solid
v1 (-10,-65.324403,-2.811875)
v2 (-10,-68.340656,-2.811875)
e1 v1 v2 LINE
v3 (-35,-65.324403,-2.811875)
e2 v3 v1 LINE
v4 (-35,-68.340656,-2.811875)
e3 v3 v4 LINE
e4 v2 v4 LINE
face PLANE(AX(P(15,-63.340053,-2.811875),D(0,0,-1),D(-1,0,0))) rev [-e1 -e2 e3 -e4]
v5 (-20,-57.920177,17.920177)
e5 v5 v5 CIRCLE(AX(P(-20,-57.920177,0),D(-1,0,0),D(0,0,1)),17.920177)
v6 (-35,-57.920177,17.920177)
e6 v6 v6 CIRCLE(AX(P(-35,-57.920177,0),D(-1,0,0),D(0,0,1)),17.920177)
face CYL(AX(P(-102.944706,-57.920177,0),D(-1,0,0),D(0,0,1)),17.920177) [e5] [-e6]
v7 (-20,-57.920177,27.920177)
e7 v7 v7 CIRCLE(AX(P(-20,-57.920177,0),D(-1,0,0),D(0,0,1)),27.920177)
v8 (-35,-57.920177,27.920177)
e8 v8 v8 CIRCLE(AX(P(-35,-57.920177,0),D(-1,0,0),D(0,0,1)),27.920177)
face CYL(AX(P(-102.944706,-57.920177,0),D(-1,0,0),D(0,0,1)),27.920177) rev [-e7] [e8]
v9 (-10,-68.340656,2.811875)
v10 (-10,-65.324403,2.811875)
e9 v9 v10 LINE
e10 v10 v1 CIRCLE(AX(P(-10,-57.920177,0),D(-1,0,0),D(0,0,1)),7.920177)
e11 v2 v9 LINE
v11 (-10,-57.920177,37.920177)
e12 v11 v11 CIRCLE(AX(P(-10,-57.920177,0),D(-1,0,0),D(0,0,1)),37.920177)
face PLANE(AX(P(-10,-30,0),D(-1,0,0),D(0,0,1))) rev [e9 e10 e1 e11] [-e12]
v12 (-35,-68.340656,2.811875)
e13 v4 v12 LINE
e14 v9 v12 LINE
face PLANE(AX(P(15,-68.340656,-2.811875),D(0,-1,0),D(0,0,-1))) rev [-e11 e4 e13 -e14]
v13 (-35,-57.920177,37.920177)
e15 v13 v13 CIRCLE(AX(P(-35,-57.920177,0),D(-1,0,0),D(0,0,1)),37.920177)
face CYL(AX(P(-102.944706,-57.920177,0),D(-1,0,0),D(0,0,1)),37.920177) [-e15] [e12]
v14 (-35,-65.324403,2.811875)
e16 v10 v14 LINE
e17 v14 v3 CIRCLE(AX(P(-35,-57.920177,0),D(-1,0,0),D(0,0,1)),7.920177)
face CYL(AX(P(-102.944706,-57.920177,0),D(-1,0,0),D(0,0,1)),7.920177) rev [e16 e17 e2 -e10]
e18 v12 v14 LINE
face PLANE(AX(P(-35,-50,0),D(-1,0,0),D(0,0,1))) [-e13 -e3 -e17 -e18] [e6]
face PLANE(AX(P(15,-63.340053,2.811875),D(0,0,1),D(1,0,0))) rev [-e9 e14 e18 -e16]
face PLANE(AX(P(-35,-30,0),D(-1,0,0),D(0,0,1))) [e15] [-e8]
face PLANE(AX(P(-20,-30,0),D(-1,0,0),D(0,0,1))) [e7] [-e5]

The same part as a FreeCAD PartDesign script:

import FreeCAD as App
import Part
import Sketcher
from FreeCAD import Vector


def add_polygon(sketch, points):
    """Adds a closed chain of lines whose ends are joined by coincident constraints."""
    first, n = sketch.GeometryCount, len(points)
    for a, b in zip(points, points[1:] + points[:1]):
        sketch.addGeometry(Part.LineSegment(App.Vector(*a, 0), App.Vector(*b, 0)), False)
    for i in range(n):
        sketch.addConstraint(Sketcher.Constraint("Coincident", first + i, 2, first + (i + 1) % n, 1))

doc = App.newDocument("Part")
params = doc.addObject("Spreadsheet::Sheet", "Params")
for row, (alias, value) in enumerate([
    ("sketch1_width", "15 mm"),
    ("sketch1_width2", "25 mm"),
    ("sketch1_height", "10 mm"),
    ("revolution_angle", "360 deg"),
    ("pocket1_length", "50 mm"),
], start=1):
    params.set(f"A{row}", alias)
    params.set(f"B{row}", "=" + value)
    params.setAlias(f"B{row}", alias)

body = doc.addObject("PartDesign::Body", "Body")

sketch1 = doc.addObject("Sketcher::SketchObject", "Sketch")
body.addObject(sketch1)
sketch1.AttachmentSupport = (doc.XY_Plane, [""])
sketch1.MapMode = "FlatFace"
add_polygon(sketch1, [(-35, -30), (-20, -30), (-20, -40), (-35, -40), (-35, -50), (-10, -50), (-10, -20), (-35, -20)])
sketch1.addGeometry(Part.LineSegment(Vector(-35, -58, 0), Vector(-10, -58, 0)), True)
sketch1.addConstraint(Sketcher.Constraint("Horizontal", 0))
sketch1.addConstraint(Sketcher.Constraint("Vertical", 1))
sketch1.addConstraint(Sketcher.Constraint("Horizontal", 2))
sketch1.addConstraint(Sketcher.Constraint("Vertical", 3))
sketch1.addConstraint(Sketcher.Constraint("Horizontal", 4))
sketch1.addConstraint(Sketcher.Constraint("Vertical", 5))
sketch1.addConstraint(Sketcher.Constraint("Horizontal", 6))
sketch1.addConstraint(Sketcher.Constraint("Vertical", 7))
sketch1.addConstraint(Sketcher.Constraint("Horizontal", 8))
sketch1.addConstraint(Sketcher.Constraint("Vertical", 3, 2, 6, 2))
sketch1.addConstraint(Sketcher.Constraint("Vertical", 7, 2, 8, 1))
sketch1.addConstraint(Sketcher.Constraint("Vertical", 5, 2, 8, 2))
sketch1.addConstraint(Sketcher.Constraint("Equal", 1, 3))
sketch1.addConstraint(Sketcher.Constraint("Equal", 3, 7))
sketch1.addConstraint(Sketcher.Constraint("DistanceX", 0, 1, 0, 2, 15.0))
sketch1.addConstraint(Sketcher.Constraint("DistanceX", 4, 1, 4, 2, 25.0))
sketch1.addConstraint(Sketcher.Constraint("DistanceY", 1, 2, 1, 1, 10.0))
sketch1.addConstraint(Sketcher.Constraint("DistanceX", 0, 2, -1, 1, 20.0))
sketch1.addConstraint(Sketcher.Constraint("DistanceY", 0, 2, -1, 1, 30.0))
sketch1.addConstraint(Sketcher.Constraint("DistanceY", 8, 1, -1, 1, 57.920177))
sketch1.setExpression("Constraints[22]", "Params.sketch1_width")
sketch1.setExpression("Constraints[23]", "Params.sketch1_width2")
sketch1.setExpression("Constraints[24]", "Params.sketch1_height")
revolution = doc.addObject("PartDesign::Revolution", "Revolution")
body.addObject(revolution)
revolution.Profile = sketch1
revolution.ReferenceAxis = (sketch1, ["Axis0"])
revolution.setExpression("Angle", "Params.revolution_angle")

sketch2 = doc.addObject("Sketcher::SketchObject", "Sketch001")
body.addObject(sketch2)
sketch2.AttachmentSupport = (doc.YZ_Plane, [""])
sketch2.MapMode = "FlatFace"
sketch2.AttachmentOffset = App.Placement(Vector(0, 0, -35), App.Rotation())
add_polygon(sketch2, [(-63, -3), (-68, -3), (-68, 3), (-63, 3)])
sketch2.addConstraint(Sketcher.Constraint("Horizontal", 0))
sketch2.addConstraint(Sketcher.Constraint("Vertical", 1))
sketch2.addConstraint(Sketcher.Constraint("Horizontal", 2))
sketch2.addConstraint(Sketcher.Constraint("Vertical", 3))
sketch2.addConstraint(Sketcher.Constraint("DistanceY", 1, 1, 1, 2, 5.62375))
sketch2.addConstraint(Sketcher.Constraint("DistanceX", 0, 2, 0, 1, 5.000603))
sketch2.addConstraint(Sketcher.Constraint("DistanceX", 0, 2, -1, 1, 68.340656))
sketch2.addConstraint(Sketcher.Constraint("DistanceY", 0, 2, -1, 1, 2.811875))
pocket1 = doc.addObject("PartDesign::Pocket", "Pocket")
body.addObject(pocket1)
pocket1.Profile = sketch2
pocket1.setExpression("Length", "Params.pocket1_length")
pocket1.Reversed = True

doc.recompute()
